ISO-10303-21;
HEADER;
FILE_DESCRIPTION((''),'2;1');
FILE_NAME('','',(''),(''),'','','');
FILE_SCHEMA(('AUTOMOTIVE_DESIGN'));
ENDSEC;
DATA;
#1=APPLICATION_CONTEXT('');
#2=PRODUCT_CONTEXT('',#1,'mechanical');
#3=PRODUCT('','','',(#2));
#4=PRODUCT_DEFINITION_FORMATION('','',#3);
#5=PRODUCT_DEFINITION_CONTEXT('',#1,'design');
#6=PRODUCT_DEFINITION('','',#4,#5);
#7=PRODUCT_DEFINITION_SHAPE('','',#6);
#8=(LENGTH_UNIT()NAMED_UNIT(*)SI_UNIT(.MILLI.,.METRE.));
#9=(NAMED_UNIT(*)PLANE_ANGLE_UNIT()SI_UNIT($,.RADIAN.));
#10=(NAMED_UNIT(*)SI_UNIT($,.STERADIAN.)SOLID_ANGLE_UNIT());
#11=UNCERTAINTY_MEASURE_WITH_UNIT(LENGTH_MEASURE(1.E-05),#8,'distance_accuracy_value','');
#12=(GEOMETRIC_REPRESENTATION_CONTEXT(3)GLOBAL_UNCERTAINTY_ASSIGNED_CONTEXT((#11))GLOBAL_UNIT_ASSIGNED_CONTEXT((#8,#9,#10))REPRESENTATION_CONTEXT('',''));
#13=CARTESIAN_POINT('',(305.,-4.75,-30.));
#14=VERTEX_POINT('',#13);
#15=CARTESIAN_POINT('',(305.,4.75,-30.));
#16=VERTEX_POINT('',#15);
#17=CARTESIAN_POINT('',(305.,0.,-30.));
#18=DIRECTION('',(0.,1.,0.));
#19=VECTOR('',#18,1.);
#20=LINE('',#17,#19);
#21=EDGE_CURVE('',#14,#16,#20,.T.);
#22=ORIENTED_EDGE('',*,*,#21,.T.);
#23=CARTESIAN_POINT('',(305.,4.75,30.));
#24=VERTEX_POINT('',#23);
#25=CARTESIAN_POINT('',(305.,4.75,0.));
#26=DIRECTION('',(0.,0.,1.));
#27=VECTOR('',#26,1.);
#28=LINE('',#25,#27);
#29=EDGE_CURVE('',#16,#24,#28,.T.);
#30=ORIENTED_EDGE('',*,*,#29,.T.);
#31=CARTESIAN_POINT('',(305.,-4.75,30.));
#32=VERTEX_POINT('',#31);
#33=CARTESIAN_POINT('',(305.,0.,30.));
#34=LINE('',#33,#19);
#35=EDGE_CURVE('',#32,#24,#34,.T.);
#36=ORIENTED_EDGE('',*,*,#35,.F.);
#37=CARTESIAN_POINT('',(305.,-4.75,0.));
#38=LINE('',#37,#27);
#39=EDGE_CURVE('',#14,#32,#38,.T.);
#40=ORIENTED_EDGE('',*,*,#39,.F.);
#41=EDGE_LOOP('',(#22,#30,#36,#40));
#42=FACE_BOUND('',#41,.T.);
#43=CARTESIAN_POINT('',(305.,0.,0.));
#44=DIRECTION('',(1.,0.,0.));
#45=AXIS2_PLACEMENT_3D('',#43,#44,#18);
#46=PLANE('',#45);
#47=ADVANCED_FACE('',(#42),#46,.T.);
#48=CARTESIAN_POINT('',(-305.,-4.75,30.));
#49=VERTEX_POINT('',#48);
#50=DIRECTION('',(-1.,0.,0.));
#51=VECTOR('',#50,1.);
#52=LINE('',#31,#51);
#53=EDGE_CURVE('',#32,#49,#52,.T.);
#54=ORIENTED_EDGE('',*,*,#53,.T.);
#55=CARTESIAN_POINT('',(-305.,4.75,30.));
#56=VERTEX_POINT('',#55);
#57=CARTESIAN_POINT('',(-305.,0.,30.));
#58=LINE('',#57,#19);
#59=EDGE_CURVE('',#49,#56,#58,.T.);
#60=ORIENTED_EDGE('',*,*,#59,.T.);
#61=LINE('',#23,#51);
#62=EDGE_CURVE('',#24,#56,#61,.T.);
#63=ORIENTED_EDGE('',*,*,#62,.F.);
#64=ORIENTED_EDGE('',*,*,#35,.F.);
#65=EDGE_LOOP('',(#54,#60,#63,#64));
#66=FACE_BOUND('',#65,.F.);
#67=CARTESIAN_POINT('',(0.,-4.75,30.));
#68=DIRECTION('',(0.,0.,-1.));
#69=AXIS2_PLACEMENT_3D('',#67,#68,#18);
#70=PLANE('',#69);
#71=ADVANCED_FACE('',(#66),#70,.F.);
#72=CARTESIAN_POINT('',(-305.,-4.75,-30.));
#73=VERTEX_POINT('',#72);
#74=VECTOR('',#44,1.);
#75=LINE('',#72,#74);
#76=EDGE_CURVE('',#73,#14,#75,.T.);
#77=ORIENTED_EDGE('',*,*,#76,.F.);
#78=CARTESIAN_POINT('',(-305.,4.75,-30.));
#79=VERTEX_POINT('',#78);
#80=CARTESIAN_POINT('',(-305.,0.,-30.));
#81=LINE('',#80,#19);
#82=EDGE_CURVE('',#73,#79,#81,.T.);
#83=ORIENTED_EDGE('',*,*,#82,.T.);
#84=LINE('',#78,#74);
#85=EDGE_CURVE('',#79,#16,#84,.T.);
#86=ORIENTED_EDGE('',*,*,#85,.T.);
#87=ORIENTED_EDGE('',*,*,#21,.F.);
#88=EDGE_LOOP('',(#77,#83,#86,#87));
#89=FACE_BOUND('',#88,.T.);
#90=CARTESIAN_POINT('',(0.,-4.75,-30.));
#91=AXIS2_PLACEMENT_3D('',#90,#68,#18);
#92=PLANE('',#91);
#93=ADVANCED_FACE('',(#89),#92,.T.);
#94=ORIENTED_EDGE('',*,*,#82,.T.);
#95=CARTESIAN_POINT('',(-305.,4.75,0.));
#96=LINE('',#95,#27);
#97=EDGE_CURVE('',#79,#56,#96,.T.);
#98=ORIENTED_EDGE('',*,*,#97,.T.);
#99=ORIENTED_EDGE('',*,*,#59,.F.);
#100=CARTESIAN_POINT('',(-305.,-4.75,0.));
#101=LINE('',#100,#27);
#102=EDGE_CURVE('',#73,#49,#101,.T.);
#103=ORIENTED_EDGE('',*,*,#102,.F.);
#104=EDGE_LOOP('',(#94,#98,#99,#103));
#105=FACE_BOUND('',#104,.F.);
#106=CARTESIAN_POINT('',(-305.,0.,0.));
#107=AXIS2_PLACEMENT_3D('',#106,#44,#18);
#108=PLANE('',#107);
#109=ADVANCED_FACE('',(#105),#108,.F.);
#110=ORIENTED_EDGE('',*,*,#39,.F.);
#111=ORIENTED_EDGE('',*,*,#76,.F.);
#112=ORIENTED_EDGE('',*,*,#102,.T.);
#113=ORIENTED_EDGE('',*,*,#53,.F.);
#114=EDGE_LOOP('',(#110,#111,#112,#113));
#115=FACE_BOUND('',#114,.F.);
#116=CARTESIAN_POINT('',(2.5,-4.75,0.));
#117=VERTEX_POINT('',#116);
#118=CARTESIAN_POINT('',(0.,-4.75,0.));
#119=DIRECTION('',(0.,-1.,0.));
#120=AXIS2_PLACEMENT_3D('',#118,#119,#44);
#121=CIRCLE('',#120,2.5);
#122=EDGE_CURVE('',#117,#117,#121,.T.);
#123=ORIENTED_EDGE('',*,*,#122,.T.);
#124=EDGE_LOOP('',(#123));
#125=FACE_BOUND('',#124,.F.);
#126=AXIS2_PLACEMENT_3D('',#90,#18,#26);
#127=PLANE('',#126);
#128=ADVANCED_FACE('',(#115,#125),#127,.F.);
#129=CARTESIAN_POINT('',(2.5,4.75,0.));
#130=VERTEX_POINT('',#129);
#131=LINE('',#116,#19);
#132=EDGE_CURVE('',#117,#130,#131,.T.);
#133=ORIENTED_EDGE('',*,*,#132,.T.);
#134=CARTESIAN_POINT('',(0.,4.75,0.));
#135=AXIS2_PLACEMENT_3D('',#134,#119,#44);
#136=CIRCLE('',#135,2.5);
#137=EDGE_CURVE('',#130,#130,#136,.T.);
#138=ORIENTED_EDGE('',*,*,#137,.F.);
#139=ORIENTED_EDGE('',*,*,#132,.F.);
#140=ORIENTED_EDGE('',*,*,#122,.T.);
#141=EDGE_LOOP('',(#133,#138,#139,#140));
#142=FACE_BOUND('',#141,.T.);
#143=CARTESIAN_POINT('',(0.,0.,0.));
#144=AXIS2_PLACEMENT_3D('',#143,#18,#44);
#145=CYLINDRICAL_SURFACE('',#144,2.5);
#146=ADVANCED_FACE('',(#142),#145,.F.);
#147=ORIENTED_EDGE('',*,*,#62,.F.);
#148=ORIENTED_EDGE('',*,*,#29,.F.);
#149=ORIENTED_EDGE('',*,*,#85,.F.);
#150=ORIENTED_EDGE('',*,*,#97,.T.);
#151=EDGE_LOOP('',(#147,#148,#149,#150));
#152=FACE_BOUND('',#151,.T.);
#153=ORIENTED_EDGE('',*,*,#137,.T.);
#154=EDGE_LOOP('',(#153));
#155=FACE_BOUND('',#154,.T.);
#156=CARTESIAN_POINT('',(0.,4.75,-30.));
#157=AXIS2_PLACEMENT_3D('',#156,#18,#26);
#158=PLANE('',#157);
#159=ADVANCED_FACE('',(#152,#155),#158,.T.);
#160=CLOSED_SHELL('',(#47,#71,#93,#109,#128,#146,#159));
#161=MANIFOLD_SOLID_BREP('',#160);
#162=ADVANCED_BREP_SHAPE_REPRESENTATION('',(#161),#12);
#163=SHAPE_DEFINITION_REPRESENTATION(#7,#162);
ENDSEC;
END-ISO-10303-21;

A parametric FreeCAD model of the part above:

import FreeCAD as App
import Part
import Sketcher

V = App.Vector
Q = App.Units.Quantity

doc = App.newDocument("Part")
params = doc.addObject("Spreadsheet::Sheet", "Params")
for row, (alias, value) in enumerate([
    ("sketch1_height", "60 mm"),
    ("sketch1_width", "9.5 mm"),
    ("pad1_length", "305 mm"),
    ("pad1_length2", "305 mm"),
    ("sketch2_diameter", "5 mm"),
], start=1):
    params.set(f"A{row}", alias)
    params.set(f"B{row}", "=" + value)
    params.setAlias(f"B{row}", alias)

body = doc.addObject("PartDesign::Body", "Body")

# Sketch on YZ plane
sketch1 = doc.addObject("Sketcher::SketchObject", "Sketch")
body.addObject(sketch1)
sketch1.AttachmentSupport = (doc.YZ_Plane, [""])
sketch1.MapMode = "FlatFace"
sketch1.addGeometry([
    Part.LineSegment(V(-5, 30, 0), V(-5, -30, 0)),
    Part.LineSegment(V(-5, -30, 0), V(5, -30, 0)),
    Part.LineSegment(V(5, -30, 0), V(5, 30, 0)),
    Part.LineSegment(V(5, 30, 0), V(-5, 30, 0)),
], False)
sketch1.addConstraint([
    Sketcher.Constraint("Coincident", 0, 2, 1, 1),
    Sketcher.Constraint("Coincident", 1, 2, 2, 1),
    Sketcher.Constraint("Coincident", 2, 2, 3, 1),
    Sketcher.Constraint("Coincident", 3, 2, 0, 1),
    Sketcher.Constraint("Vertical", 0),
    Sketcher.Constraint("Horizontal", 1),
    Sketcher.Constraint("Vertical", 2),
    Sketcher.Constraint("Horizontal", 3),
    Sketcher.Constraint("Symmetric", 0, 2, 2, 2, -1, 1),
    Sketcher.Constraint("DistanceY", 0, 2, 0, 1, Q("60 mm")),
    Sketcher.Constraint("DistanceX", 1, 1, 1, 2, Q("9.5 mm")),
])
sketch1.setExpression("Constraints[9]", "Params.sketch1_height")
sketch1.setExpression("Constraints[10]", "Params.sketch1_width")
pad1 = doc.addObject("PartDesign::Pad", "Pad")
body.addObject(pad1)
pad1.Profile = sketch1
pad1.Type = "TwoLengths"
pad1.setExpression("Length", "Params.pad1_length")
pad1.setExpression("Length2", "Params.pad1_length2")

# Sketch on XZ plane
sketch2 = doc.addObject("Sketcher::SketchObject", "Sketch001")
body.addObject(sketch2)
sketch2.AttachmentSupport = (doc.XZ_Plane, [""])
sketch2.MapMode = "FlatFace"
sketch2.addGeometry(Part.Circle(V(0, 0, 0), V(0, 0, 1), 2.5), False)
sketch2.addConstraint([
    Sketcher.Constraint("Coincident", 0, 3, -1, 1),
    Sketcher.Constraint("Diameter", 0, Q("5 mm")),
])
sketch2.setExpression("Constraints[1]", "Params.sketch2_diameter")
pocket1 = doc.addObject("PartDesign::Pocket", "Pocket")
body.addObject(pocket1)
pocket1.Profile = sketch2
pocket1.Type = "ThroughAll"
pocket1.Midplane = True

doc.recompute()
